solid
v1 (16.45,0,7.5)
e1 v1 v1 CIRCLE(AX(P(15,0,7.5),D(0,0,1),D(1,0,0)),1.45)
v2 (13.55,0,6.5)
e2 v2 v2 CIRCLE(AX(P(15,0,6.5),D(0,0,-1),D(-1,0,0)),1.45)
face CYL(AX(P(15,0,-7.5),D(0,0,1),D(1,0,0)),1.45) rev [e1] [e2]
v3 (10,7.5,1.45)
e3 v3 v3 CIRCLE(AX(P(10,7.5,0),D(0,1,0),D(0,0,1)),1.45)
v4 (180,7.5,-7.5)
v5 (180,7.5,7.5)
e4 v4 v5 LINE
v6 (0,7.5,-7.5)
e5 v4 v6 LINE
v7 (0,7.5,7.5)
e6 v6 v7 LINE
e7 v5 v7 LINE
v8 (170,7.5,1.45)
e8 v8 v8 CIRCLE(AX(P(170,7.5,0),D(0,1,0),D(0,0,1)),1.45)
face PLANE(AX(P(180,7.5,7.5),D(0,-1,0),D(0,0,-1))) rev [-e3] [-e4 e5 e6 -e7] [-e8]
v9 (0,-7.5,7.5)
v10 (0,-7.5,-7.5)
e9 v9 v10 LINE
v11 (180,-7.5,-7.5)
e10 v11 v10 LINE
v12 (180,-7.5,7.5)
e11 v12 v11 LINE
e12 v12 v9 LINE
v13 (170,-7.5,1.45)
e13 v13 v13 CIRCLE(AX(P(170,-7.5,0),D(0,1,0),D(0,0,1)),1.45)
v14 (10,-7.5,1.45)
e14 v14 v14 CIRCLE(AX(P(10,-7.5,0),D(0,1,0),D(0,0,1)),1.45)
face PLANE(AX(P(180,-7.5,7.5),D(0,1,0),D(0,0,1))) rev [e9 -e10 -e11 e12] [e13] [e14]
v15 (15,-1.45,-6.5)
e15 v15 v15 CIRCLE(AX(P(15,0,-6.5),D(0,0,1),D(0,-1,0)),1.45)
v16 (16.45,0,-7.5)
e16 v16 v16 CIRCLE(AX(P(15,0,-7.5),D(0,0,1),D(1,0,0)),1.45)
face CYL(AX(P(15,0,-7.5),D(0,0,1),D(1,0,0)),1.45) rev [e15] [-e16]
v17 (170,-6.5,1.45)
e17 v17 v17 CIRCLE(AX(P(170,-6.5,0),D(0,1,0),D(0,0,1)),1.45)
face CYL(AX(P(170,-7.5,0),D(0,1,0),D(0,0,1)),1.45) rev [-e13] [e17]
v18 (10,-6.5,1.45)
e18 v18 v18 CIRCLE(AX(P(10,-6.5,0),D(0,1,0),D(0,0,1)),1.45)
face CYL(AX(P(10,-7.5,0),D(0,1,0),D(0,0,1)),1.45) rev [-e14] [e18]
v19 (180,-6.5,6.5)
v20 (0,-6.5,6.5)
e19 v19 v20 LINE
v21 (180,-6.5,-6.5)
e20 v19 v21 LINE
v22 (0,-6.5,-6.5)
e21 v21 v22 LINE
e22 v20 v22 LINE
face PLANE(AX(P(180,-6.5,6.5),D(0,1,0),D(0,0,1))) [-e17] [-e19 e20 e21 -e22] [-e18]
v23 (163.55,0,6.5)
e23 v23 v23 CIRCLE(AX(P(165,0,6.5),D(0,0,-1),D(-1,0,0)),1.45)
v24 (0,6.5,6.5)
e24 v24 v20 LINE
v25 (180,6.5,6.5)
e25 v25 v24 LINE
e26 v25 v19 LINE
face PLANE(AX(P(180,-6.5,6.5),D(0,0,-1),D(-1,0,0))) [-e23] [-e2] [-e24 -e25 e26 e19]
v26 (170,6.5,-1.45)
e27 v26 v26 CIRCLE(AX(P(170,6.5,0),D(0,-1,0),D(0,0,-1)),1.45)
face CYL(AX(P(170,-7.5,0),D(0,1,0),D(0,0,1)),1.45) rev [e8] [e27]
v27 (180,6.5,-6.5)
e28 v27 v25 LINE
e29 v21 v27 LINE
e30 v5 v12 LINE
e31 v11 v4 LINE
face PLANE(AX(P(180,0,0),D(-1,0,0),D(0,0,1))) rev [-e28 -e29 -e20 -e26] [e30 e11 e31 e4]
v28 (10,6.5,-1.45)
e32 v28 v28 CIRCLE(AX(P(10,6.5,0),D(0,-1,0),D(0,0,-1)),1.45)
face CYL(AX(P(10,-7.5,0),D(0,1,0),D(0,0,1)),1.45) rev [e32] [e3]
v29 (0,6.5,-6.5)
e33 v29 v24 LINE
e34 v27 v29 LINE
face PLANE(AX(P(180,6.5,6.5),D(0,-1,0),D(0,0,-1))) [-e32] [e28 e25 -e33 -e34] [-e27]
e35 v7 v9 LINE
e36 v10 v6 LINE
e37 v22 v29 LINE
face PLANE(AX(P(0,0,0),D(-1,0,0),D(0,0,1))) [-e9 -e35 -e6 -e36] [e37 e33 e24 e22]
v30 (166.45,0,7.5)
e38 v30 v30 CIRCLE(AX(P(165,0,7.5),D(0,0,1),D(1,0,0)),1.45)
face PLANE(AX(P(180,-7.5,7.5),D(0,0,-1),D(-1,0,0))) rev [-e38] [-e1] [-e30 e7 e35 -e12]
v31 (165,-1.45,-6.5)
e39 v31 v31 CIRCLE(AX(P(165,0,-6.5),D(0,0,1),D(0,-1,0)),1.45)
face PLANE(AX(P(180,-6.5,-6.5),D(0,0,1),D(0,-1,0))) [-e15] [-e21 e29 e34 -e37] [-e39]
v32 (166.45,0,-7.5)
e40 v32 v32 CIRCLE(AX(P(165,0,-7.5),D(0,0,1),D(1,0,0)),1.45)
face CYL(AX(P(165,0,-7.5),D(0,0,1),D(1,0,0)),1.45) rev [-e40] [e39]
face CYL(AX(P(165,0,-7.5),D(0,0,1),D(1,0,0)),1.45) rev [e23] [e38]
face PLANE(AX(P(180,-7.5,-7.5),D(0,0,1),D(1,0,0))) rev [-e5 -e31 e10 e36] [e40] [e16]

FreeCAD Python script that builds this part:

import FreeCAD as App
import Part
import Sketcher

doc = App.newDocument("Part")
params = doc.addObject("Spreadsheet::Sheet", "Params")
for row, (alias, value) in enumerate([
    ("sketch1_width", "15 mm"),
    ("sketch1_width2", "13 mm"),
    ("pad1_length", "180 mm"),
    ("sketch2_diameter", "2.9 mm"),
    ("sketch3_diameter", "2.9 mm"),
], start=1):
    params.set(f"A{row}", alias)
    params.set(f"B{row}", "=" + value)
    params.setAlias(f"B{row}", alias)

body = doc.addObject("PartDesign::Body", "Body")

# Sketch on YZ plane
sketch1 = doc.addObject("Sketcher::SketchObject", "Sketch")
body.addObject(sketch1)
sketch1.AttachmentSupport = (doc.YZ_Plane, [""])
sketch1.MapMode = "FlatFace"
sketch1.addGeometry([
    Part.LineSegment(App.Vector(8, 8, 0), App.Vector(-8, 8, 0)),  # 0
    Part.LineSegment(App.Vector(-8, 8, 0), App.Vector(-8, -8, 0)),  # 1
    Part.LineSegment(App.Vector(-8, -8, 0), App.Vector(8, -8, 0)),  # 2
    Part.LineSegment(App.Vector(8, -8, 0), App.Vector(8, 8, 0)),  # 3
    Part.LineSegment(App.Vector(-6, -6, 0), App.Vector(-6, 6, 0)),  # 4
    Part.LineSegment(App.Vector(-6, 6, 0), App.Vector(6, 6, 0)),  # 5
    Part.LineSegment(App.Vector(6, 6, 0), App.Vector(6, -6, 0)),  # 6
    Part.LineSegment(App.Vector(6, -6, 0), App.Vector(-6, -6, 0)),  # 7
], False)
sketch1.addConstraint([
    Sketcher.Constraint("Coincident", 0, 2, 1, 1),
    Sketcher.Constraint("Coincident", 1, 2, 2, 1),
    Sketcher.Constraint("Coincident", 2, 2, 3, 1),
    Sketcher.Constraint("Coincident", 3, 2, 0, 1),
    Sketcher.Constraint("Coincident", 4, 2, 5, 1),
    Sketcher.Constraint("Coincident", 5, 2, 6, 1),
    Sketcher.Constraint("Coincident", 6, 2, 7, 1),
    Sketcher.Constraint("Coincident", 7, 2, 4, 1),
    Sketcher.Constraint("Horizontal", 0),
    Sketcher.Constraint("Vertical", 1),
    Sketcher.Constraint("Horizontal", 2),
    Sketcher.Constraint("Vertical", 3),
    Sketcher.Constraint("Vertical", 4),
    Sketcher.Constraint("Horizontal", 5),
    Sketcher.Constraint("Vertical", 6),
    Sketcher.Constraint("Horizontal", 7),
    Sketcher.Constraint("Symmetric", 0, 2, 2, 2, -1, 1),
    Sketcher.Constraint("Symmetric", 4, 2, 6, 2, -1, 1),
    Sketcher.Constraint("Equal", 2, 1),
    Sketcher.Constraint("Equal", 7, 4),
    Sketcher.Constraint("DistanceX", 0, 2, 0, 1, 15.0),
    Sketcher.Constraint("DistanceX", 5, 1, 5, 2, 13.0),
])
sketch1.setExpression("Constraints[20]", "Params.sketch1_width")
sketch1.setExpression("Constraints[21]", "Params.sketch1_width2")
pad1 = doc.addObject("PartDesign::Pad", "Pad")
body.addObject(pad1)
pad1.Profile = sketch1
pad1.setExpression("Length", "Params.pad1_length")

# Sketch on XZ plane
sketch2 = doc.addObject("Sketcher::SketchObject", "Sketch001")
body.addObject(sketch2)
sketch2.AttachmentSupport = (doc.XZ_Plane, [""])
sketch2.MapMode = "FlatFace"
sketch2.AttachmentOffset = App.Placement(App.Vector(0, 0, -7.5), App.Rotation())
sketch2.addGeometry([
    Part.Circle(App.Vector(10, 0, 0), App.Vector(0, 0, 1), 1.4),
    Part.Circle(App.Vector(170, 0, 0), App.Vector(0, 0, 1), 1.4),
], False)
sketch2.addConstraint([
    Sketcher.Constraint("Equal", 0, 1),
    Sketcher.Constraint("PointOnObject", 0, 3, -1),
    Sketcher.Constraint("PointOnObject", 1, 3, -1),
    Sketcher.Constraint("Diameter", 0, 2.9),
    Sketcher.Constraint("DistanceX", -1, 1, 0, 3, 10.0),
    Sketcher.Constraint("DistanceX", -1, 1, 1, 3, 170.0),
])
sketch2.setExpression("Constraints[3]", "Params.sketch2_diameter")
pocket1 = doc.addObject("PartDesign::Pocket", "Pocket")
body.addObject(pocket1)
pocket1.Profile = sketch2
pocket1.Type = "ThroughAll"
pocket1.Reversed = True

# Sketch on XY plane
sketch3 = doc.addObject("Sketcher::SketchObject", "Sketch002")
body.addObject(sketch3)
sketch3.AttachmentSupport = (doc.XY_Plane, [""])
sketch3.MapMode = "FlatFace"
sketch3.AttachmentOffset = App.Placement(App.Vector(0, 0, 7.5), App.Rotation())
sketch3.addGeometry([
    Part.Circle(App.Vector(15, 0, 0), App.Vector(0, 0, 1), 1.4),
    Part.Circle(App.Vector(165, 0, 0), App.Vector(0, 0, 1), 1.4),
], False)
sketch3.addConstraint([
    Sketcher.Constraint("Equal", 0, 1),
    Sketcher.Constraint("PointOnObject", 0, 3, -1),
    Sketcher.Constraint("PointOnObject", 1, 3, -1),
    Sketcher.Constraint("Diameter", 0, 2.9),
    Sketcher.Constraint("DistanceX", -1, 1, 0, 3, 15.0),
    Sketcher.Constraint("DistanceX", -1, 1, 1, 3, 165.0),
])
sketch3.setExpression("Constraints[3]", "Params.sketch3_diameter")
pocket2 = doc.addObject("PartDesign::Pocket", "Pocket001")
body.addObject(pocket2)
pocket2.Profile = sketch3
pocket2.Type = "ThroughAll"

doc.recompute()
